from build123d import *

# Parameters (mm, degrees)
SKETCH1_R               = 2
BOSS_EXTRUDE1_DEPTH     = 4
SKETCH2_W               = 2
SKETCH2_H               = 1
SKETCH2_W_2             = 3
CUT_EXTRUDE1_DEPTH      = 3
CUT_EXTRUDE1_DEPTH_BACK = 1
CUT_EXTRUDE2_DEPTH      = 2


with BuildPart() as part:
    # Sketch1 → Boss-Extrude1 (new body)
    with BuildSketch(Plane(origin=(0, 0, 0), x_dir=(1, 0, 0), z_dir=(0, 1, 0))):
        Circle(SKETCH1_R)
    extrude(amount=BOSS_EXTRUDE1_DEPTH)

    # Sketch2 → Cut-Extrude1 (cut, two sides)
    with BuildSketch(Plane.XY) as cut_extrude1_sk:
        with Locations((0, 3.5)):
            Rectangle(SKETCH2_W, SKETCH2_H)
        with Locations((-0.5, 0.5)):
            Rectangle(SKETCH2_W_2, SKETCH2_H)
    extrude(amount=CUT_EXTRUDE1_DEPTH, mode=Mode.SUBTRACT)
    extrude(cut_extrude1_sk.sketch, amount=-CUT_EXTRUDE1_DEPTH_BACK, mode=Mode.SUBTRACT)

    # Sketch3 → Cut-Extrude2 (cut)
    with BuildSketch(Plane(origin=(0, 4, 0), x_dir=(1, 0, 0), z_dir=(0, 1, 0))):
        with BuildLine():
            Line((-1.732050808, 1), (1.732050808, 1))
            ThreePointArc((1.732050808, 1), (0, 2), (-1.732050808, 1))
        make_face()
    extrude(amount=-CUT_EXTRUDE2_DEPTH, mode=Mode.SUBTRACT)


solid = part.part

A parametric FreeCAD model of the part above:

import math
import FreeCAD as App
import Part
import Sketcher

doc = App.newDocument("Part")
body = doc.addObject("PartDesign::Body", "Body")

# Sketch on XZ plane
sketch1 = body.newObject("Sketcher::SketchObject", "Sketch")
sketch1.AttachmentSupport = (doc.getObject("XZ_Plane"), [""])
sketch1.MapMode = "FlatFace"
sketch1.addGeometry(Part.Circle(App.Vector(0, 0, 0), App.Vector(0, 0, 1), 2), False)
sketch1.addConstraint(Sketcher.Constraint("Coincident", 0, 3, -1, 1))
sketch1.addConstraint(Sketcher.Constraint("Diameter", 0, 4.0))
pad1 = body.newObject("PartDesign::Pad", "Pad")
pad1.Profile = sketch1
pad1.Length = 4
pad1.Reversed = True

# Sketch on XY plane
sketch2 = body.newObject("Sketcher::SketchObject", "Sketch001")
sketch2.AttachmentSupport = (doc.getObject("XY_Plane"), [""])
sketch2.MapMode = "FlatFace"
sketch2.addGeometry(Part.LineSegment(App.Vector(-1, 4, 0), App.Vector(-1, 3, 0)), False)
sketch2.addGeometry(Part.LineSegment(App.Vector(-1, 3, 0), App.Vector(1, 3, 0)), False)
sketch2.addGeometry(Part.LineSegment(App.Vector(1, 3, 0), App.Vector(1, 4, 0)), False)
sketch2.addGeometry(Part.LineSegment(App.Vector(1, 4, 0), App.Vector(-1, 4, 0)), False)
sketch2.addGeometry(Part.LineSegment(App.Vector(-2, 1, 0), App.Vector(-2, 0, 0)), False)
sketch2.addGeometry(Part.LineSegment(App.Vector(-2, 0, 0), App.Vector(1, 0, 0)), False)
sketch2.addGeometry(Part.LineSegment(App.Vector(1, 0, 0), App.Vector(1, 1, 0)), False)
sketch2.addGeometry(Part.LineSegment(App.Vector(1, 1, 0), App.Vector(-2, 1, 0)), False)
sketch2.addConstraint(Sketcher.Constraint("Coincident", 0, 2, 1, 1))
sketch2.addConstraint(Sketcher.Constraint("Coincident", 1, 2, 2, 1))
sketch2.addConstraint(Sketcher.Constraint("Coincident", 2, 2, 3, 1))
sketch2.addConstraint(Sketcher.Constraint("Coincident", 3, 2, 0, 1))
sketch2.addConstraint(Sketcher.Constraint("Coincident", 4, 2, 5, 1))
sketch2.addConstraint(Sketcher.Constraint("Coincident", 5, 2, 6, 1))
sketch2.addConstraint(Sketcher.Constraint("Coincident", 6, 2, 7, 1))
sketch2.addConstraint(Sketcher.Constraint("Coincident", 7, 2, 4, 1))
sketch2.addConstraint(Sketcher.Constraint("Vertical", 0))
sketch2.addConstraint(Sketcher.Constraint("Horizontal", 1))
sketch2.addConstraint(Sketcher.Constraint("Vertical", 2))
sketch2.addConstraint(Sketcher.Constraint("Horizontal", 3))
sketch2.addConstraint(Sketcher.Constraint("Vertical", 4))
sketch2.addConstraint(Sketcher.Constraint("Horizontal", 5))
sketch2.addConstraint(Sketcher.Constraint("Vertical", 6))
sketch2.addConstraint(Sketcher.Constraint("Horizontal", 7))
sketch2.addConstraint(Sketcher.Constraint("PointOnObject", 4, 2, -1))
sketch2.addConstraint(Sketcher.Constraint("Vertical", 2, 2, 5, 2))
sketch2.addConstraint(Sketcher.Constraint("Equal", 2, 4))
sketch2.addConstraint(Sketcher.Constraint("DistanceX", 1, 1, 1, 2, 2.0))
sketch2.addConstraint(Sketcher.Constraint("DistanceX", 5, 1, 5, 2, 3.0))
sketch2.addConstraint(Sketcher.Constraint("DistanceY", 0, 2, 0, 1, 1.0))
sketch2.addConstraint(Sketcher.Constraint("DistanceX", 0, 2, -1, 1, 1.0))
sketch2.addConstraint(Sketcher.Constraint("DistanceY", -1, 1, 0, 2, 3.0))
pocket1 = body.newObject("PartDesign::Pocket", "Pocket")
pocket1.Profile = sketch2
pocket1.Type = "TwoLengths"
pocket1.Length = 3
pocket1.Length2 = 1
pocket1.Reversed = True

# Sketch on XZ plane
sketch3 = body.newObject("Sketcher::SketchObject", "Sketch002")
sketch3.AttachmentSupport = (doc.getObject("XZ_Plane"), [""])
sketch3.MapMode = "FlatFace"
sketch3.AttachmentOffset = App.Placement(App.Vector(0, 0, -4), App.Rotation())
sketch3.addGeometry(Part.LineSegment(App.Vector(-1.7, -1, 0), App.Vector(1.7, -1, 0)), False)
sketch3.addGeometry(Part.ArcOfCircle(Part.Circle(App.Vector(0, 0, 0), App.Vector(0, 0, 1), 2), math.radians(-150), math.radians(-30)), False)
sketch3.addConstraint(Sketcher.Constraint("Coincident", 0, 1, 1, 1))
sketch3.addConstraint(Sketcher.Constraint("Coincident", 1, 2, 0, 2))
sketch3.addConstraint(Sketcher.Constraint("Horizontal", 0))
sketch3.addConstraint(Sketcher.Constraint("Coincident", 1, 3, -1, 1))
sketch3.addConstraint(Sketcher.Constraint("Radius", 1, 2.0))
sketch3.addConstraint(Sketcher.Constraint("DistanceY", 0, 1, -1, 1, 1.0))
pocket2 = body.newObject("PartDesign::Pocket", "Pocket001")
pocket2.Profile = sketch3
pocket2.Length = 2
pocket2.Reversed = True

doc.recompute()
